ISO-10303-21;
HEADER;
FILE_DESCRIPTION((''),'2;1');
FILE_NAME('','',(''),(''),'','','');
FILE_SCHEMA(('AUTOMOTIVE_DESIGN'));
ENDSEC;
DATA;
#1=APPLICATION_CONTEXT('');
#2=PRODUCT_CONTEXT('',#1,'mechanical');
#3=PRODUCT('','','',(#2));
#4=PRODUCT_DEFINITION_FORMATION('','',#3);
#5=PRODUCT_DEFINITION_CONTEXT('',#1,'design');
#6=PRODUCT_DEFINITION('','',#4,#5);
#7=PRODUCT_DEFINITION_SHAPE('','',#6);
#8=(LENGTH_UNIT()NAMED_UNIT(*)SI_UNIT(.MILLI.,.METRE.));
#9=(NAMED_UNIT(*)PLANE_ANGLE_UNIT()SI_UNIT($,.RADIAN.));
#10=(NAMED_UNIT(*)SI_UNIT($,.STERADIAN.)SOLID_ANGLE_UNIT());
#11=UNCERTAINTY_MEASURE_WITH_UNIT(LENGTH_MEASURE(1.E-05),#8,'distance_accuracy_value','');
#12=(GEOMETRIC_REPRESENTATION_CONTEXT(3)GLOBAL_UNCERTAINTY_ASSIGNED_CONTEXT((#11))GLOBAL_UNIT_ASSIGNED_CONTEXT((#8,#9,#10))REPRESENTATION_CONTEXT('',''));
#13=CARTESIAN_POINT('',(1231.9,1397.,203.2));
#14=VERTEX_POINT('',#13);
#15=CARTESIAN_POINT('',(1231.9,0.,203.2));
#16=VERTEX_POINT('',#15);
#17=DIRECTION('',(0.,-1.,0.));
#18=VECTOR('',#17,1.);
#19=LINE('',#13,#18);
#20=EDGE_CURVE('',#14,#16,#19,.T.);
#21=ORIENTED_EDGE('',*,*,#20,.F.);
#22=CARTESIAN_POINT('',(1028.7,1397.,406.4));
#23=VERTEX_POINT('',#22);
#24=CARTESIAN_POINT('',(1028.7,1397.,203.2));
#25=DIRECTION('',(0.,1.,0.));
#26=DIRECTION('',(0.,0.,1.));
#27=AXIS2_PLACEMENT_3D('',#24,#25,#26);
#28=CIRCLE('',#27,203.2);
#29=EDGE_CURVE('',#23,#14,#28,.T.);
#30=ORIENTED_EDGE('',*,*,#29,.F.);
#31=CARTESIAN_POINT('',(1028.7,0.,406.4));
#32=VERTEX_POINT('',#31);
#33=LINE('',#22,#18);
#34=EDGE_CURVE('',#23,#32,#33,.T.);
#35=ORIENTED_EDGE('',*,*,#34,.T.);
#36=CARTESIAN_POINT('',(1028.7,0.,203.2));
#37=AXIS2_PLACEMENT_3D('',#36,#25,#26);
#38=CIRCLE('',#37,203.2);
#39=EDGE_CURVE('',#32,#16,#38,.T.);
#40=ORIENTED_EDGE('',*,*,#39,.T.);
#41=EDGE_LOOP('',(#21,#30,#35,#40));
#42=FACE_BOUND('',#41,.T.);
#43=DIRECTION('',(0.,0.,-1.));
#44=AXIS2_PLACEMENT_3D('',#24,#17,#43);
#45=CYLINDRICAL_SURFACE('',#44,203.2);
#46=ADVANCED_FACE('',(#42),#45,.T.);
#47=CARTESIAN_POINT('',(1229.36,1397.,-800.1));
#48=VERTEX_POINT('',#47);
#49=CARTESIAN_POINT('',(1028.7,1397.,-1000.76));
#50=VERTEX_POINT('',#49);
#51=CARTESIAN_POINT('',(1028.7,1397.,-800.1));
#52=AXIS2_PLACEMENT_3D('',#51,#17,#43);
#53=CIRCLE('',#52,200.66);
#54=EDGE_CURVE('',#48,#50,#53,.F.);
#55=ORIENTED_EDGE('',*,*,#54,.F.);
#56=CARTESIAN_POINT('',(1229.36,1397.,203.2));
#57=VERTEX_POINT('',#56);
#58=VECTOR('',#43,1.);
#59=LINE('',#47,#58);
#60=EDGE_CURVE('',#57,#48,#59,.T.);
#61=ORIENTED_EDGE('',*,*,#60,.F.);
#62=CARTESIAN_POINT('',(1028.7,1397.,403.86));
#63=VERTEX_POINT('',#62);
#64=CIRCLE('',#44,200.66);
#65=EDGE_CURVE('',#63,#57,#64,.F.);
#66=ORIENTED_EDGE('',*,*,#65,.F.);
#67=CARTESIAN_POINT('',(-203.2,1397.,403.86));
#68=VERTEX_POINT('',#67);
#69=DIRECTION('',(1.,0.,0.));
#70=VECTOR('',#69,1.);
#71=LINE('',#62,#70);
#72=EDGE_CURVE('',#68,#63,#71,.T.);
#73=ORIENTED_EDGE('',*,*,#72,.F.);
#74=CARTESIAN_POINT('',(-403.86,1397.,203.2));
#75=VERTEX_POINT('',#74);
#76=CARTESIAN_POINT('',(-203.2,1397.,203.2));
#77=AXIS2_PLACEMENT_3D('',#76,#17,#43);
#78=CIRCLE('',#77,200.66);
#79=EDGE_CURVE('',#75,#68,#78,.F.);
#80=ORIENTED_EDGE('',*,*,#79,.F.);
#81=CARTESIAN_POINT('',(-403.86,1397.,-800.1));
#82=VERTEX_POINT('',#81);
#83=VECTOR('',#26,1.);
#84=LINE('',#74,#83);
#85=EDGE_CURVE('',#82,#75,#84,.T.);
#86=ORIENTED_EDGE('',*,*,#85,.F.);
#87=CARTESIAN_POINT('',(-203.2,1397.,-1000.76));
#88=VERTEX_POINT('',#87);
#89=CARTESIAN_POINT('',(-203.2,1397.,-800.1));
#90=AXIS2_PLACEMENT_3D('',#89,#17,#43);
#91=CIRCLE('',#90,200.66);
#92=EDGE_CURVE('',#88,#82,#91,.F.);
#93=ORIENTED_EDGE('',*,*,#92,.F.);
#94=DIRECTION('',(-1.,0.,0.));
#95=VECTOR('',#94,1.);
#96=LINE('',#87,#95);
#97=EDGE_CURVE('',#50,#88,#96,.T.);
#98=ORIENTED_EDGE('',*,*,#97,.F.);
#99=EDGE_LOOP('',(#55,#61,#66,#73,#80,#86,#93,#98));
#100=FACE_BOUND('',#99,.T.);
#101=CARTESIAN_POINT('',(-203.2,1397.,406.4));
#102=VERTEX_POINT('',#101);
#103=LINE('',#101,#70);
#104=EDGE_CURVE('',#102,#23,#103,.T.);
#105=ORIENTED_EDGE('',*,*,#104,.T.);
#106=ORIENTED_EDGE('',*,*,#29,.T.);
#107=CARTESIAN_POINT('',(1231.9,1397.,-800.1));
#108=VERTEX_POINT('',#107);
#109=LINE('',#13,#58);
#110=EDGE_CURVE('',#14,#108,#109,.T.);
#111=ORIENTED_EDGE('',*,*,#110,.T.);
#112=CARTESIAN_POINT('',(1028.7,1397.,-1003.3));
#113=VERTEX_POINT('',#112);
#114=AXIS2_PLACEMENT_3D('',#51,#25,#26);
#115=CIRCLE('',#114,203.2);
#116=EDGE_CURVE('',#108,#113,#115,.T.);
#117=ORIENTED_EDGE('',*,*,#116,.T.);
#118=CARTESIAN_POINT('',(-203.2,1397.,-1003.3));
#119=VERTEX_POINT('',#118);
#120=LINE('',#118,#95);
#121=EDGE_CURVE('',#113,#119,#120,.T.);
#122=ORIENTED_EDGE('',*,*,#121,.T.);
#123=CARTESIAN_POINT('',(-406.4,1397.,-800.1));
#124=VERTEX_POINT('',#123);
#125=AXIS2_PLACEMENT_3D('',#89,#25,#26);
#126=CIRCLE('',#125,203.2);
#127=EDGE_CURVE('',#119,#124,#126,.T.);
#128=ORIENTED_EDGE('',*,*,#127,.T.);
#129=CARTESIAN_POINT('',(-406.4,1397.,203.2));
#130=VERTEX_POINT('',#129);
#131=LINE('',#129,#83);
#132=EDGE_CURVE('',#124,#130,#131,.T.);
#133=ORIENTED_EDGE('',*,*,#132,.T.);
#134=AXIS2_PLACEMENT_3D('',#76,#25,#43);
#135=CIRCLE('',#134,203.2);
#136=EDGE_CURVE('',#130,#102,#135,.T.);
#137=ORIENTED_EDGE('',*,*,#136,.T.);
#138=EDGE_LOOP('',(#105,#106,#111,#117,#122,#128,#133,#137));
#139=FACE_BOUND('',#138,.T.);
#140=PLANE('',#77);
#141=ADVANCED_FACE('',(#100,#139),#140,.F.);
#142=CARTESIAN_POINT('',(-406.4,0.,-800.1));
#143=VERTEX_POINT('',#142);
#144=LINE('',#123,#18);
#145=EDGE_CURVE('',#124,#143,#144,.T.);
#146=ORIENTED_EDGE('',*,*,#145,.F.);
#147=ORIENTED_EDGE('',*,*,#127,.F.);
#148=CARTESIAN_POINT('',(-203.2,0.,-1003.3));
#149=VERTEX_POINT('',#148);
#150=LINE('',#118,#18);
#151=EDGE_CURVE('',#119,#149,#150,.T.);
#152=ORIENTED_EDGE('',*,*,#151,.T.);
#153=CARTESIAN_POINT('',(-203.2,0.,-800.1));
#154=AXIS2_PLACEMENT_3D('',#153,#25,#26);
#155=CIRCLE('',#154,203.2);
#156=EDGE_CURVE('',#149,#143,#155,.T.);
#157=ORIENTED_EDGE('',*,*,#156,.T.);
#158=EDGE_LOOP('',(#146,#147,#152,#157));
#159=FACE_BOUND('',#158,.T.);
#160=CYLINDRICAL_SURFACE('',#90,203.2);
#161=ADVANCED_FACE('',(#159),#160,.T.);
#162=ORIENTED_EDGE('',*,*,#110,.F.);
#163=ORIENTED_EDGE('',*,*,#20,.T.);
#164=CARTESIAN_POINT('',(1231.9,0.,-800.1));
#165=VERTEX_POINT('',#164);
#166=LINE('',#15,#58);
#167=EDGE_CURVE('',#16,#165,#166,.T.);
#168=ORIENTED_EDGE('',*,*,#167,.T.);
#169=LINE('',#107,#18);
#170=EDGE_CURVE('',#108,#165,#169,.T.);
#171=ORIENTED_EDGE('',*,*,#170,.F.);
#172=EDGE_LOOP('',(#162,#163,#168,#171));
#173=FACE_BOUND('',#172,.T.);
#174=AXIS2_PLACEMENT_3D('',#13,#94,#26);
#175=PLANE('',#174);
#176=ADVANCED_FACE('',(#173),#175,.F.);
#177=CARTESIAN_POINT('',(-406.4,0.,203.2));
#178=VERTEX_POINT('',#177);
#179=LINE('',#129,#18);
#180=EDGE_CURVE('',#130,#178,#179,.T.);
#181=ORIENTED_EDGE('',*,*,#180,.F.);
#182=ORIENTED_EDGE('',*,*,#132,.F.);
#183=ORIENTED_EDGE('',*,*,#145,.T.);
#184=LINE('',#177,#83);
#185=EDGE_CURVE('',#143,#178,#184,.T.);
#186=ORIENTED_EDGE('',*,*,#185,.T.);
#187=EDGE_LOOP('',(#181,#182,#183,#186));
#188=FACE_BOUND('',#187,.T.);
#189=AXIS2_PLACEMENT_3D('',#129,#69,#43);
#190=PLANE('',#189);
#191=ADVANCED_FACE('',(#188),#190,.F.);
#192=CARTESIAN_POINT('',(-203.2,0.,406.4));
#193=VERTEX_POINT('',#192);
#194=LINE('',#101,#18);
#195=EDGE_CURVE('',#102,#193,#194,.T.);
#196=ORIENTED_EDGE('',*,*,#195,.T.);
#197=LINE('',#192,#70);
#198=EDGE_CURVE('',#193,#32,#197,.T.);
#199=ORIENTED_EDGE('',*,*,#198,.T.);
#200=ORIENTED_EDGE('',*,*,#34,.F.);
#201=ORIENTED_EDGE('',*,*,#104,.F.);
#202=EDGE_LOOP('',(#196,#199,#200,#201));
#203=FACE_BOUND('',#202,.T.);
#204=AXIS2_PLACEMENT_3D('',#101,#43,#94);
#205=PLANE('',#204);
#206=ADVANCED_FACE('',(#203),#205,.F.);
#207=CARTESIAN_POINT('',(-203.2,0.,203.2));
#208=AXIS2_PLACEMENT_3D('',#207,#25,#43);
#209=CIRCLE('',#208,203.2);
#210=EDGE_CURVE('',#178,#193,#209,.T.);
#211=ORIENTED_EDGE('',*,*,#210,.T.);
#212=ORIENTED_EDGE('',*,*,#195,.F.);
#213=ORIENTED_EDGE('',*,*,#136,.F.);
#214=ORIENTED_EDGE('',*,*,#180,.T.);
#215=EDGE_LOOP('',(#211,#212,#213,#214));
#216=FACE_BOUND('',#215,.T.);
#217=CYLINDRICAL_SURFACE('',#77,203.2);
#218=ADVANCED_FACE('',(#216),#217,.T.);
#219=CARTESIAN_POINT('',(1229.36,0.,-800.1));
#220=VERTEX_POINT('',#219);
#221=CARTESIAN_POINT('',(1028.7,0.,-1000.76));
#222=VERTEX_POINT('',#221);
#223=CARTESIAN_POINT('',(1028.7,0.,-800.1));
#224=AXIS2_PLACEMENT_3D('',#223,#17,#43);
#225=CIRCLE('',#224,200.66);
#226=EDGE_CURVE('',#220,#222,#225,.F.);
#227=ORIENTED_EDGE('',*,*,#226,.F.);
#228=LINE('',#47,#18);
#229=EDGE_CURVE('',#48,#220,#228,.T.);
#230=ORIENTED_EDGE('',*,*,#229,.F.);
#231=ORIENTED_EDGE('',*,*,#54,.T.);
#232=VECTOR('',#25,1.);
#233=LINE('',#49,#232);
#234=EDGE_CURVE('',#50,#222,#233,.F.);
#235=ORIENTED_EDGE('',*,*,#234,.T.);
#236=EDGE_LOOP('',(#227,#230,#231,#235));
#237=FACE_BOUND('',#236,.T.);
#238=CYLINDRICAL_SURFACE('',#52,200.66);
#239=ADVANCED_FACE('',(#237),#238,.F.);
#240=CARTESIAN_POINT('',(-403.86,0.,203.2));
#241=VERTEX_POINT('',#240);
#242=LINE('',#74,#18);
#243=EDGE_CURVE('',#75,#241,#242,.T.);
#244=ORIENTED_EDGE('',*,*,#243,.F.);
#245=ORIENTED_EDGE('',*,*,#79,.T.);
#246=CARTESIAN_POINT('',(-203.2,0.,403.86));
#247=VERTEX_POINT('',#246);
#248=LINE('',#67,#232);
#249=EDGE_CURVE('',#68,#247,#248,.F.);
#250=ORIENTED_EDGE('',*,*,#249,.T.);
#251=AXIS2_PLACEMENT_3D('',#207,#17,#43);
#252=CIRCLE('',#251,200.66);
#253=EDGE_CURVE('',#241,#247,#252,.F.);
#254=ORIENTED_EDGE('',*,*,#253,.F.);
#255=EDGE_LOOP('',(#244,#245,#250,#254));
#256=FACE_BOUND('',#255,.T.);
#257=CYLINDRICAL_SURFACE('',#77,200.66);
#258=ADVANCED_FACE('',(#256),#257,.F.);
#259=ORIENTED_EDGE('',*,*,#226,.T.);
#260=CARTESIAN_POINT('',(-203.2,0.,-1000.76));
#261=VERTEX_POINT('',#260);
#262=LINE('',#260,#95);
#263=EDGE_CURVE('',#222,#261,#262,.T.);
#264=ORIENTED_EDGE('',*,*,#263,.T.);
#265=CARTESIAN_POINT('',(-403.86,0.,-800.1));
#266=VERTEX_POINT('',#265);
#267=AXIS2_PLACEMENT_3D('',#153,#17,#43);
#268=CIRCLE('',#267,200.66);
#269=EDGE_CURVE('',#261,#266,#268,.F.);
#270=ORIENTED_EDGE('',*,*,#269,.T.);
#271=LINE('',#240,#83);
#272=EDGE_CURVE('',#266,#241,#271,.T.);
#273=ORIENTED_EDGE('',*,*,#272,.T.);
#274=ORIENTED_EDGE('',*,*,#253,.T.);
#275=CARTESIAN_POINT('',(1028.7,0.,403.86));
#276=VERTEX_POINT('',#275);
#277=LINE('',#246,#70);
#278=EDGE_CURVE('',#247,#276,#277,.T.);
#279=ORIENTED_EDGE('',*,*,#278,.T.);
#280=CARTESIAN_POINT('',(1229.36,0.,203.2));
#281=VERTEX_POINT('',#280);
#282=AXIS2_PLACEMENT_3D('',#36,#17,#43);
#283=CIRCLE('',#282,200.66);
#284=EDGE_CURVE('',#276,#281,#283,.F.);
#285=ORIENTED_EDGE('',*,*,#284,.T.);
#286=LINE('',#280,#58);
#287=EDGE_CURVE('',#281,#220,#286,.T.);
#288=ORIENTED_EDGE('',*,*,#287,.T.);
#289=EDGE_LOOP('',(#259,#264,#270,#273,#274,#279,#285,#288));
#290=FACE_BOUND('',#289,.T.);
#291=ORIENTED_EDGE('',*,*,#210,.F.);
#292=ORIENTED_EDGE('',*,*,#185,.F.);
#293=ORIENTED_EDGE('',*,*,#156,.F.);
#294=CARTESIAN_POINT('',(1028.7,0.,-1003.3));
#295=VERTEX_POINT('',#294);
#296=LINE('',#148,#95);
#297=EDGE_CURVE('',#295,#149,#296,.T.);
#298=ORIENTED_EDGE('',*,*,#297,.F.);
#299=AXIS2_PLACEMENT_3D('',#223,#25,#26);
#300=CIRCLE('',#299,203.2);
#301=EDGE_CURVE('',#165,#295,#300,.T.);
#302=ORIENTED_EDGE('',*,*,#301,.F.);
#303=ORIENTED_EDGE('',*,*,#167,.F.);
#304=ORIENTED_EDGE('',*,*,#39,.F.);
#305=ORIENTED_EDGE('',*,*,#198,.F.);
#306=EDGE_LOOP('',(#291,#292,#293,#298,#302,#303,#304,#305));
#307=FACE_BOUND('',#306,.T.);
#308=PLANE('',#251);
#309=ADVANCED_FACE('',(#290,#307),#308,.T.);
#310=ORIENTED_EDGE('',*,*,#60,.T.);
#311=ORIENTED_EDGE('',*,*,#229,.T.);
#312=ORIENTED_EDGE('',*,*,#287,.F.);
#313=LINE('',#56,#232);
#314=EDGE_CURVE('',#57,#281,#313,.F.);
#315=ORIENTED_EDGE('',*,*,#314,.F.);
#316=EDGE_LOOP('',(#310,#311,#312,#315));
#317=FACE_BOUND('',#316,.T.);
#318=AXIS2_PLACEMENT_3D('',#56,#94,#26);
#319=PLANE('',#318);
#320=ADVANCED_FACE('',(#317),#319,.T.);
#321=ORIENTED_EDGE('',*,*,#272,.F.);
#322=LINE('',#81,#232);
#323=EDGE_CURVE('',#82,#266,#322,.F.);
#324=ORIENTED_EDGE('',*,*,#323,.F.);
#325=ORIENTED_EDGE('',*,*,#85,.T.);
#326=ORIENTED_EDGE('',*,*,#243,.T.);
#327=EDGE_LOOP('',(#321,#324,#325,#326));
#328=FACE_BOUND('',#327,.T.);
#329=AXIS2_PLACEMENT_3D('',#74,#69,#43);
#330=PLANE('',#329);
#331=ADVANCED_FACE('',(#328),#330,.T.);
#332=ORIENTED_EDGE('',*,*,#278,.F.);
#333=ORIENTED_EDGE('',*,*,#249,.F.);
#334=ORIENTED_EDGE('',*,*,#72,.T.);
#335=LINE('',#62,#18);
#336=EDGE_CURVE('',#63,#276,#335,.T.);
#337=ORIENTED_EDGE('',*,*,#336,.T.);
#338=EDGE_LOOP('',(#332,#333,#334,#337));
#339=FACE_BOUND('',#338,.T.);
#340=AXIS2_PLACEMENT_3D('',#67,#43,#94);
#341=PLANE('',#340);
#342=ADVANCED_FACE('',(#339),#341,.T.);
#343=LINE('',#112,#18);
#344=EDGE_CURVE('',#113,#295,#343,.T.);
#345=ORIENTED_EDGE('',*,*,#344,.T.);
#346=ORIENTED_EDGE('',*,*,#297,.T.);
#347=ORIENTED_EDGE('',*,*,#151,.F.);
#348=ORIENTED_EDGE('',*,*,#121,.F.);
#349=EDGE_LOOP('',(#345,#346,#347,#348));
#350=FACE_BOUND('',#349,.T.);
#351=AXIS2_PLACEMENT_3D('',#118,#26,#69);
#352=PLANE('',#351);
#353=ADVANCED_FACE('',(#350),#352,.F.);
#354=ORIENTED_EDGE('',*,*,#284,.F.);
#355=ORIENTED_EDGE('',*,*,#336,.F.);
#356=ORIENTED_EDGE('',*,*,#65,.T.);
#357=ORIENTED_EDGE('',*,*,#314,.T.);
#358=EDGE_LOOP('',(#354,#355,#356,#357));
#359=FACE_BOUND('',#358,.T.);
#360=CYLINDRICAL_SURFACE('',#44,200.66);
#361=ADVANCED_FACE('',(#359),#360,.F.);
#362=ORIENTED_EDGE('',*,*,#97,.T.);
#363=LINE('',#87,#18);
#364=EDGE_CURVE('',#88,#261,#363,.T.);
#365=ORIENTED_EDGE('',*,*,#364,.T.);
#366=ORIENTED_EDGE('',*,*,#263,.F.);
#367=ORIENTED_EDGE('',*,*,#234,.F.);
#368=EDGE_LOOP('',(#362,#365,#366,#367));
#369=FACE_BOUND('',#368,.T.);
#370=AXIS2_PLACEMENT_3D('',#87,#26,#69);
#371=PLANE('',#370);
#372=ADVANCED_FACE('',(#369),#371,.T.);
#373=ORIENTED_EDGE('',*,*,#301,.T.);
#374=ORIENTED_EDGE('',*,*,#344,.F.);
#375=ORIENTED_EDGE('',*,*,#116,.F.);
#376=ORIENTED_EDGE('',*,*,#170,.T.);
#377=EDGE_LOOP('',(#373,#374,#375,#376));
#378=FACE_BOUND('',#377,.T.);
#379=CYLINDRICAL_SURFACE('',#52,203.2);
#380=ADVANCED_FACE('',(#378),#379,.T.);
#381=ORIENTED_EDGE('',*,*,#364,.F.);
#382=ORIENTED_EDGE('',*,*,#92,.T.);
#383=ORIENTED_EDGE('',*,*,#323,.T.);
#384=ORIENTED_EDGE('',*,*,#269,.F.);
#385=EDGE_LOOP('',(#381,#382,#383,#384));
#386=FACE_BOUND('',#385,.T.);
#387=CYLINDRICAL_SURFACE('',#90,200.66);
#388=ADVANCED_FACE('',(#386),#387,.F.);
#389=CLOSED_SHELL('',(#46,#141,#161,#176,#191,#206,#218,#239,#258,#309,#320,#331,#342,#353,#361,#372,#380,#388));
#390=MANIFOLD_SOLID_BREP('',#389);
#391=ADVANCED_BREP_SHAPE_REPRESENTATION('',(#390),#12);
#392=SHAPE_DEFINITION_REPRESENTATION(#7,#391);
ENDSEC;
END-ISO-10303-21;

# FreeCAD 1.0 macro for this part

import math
import FreeCAD as App
import Part
import Sketcher

V = App.Vector
Q = App.Units.Quantity


def faces_at(feature, points):
    """Names of the faces that lie closest to the given points."""
    faces = feature.Shape.Faces
    near = lambda p: min(range(len(faces)), key=lambda i: faces[i].distToShape(Part.Vertex(*p))[0])
    return sorted({f"Face{near(p) + 1}" for p in points})

doc = App.newDocument("Part")
body = doc.addObject("PartDesign::Body", "Body")

# Sketch on XZ plane
sketch1 = body.newObject("Sketcher::SketchObject", "Sketch")
sketch1.AttachmentSupport = (doc.getObject("XZ_Plane"), [""])
sketch1.MapMode = "FlatFace"
sketch1.addGeometry([
    Part.LineSegment(V(-203, 406, 0), V(1029, 406, 0)),  # 0
    Part.ArcOfCircle(Part.Circle(V(1029, 203, 0), V(0, 0, 1), 203), math.radians(0), math.radians(90)),  # 1
    Part.LineSegment(V(1232, 203, 0), V(1232, -800, 0)),  # 2
    Part.ArcOfCircle(Part.Circle(V(1029, -800, 0), V(0, 0, 1), 203), math.radians(-90), math.radians(0)),  # 3
    Part.LineSegment(V(1029, -1003, 0), V(-203, -1003, 0)),  # 4
    Part.ArcOfCircle(Part.Circle(V(-203, -800, 0), V(0, 0, 1), 203), math.radians(180), math.radians(270)),  # 5
    Part.LineSegment(V(-406, -800, 0), V(-406, 203, 0)),  # 6
    Part.ArcOfCircle(Part.Circle(V(-203, 203, 0), V(0, 0, 1), 203), math.radians(90), math.radians(180)),  # 7
], False)
sketch1.addConstraint([
    Sketcher.Constraint("Tangent", 0, 2, 1, 2),
    Sketcher.Constraint("Tangent", 1, 1, 2, 1),
    Sketcher.Constraint("Tangent", 2, 2, 3, 2),
    Sketcher.Constraint("Tangent", 3, 1, 4, 1),
    Sketcher.Constraint("Tangent", 4, 2, 5, 2),
    Sketcher.Constraint("Tangent", 5, 1, 6, 1),
    Sketcher.Constraint("Tangent", 6, 2, 7, 2),
    Sketcher.Constraint("Tangent", 7, 1, 0, 1),
    Sketcher.Constraint("Horizontal", 0),
    Sketcher.Constraint("Vertical", 2),
    Sketcher.Constraint("Horizontal", 4),
    Sketcher.Constraint("Vertical", 6),
    Sketcher.Constraint("Equal", 1, 3),
    Sketcher.Constraint("Equal", 3, 5),
    Sketcher.Constraint("Equal", 5, 7),
    Sketcher.Constraint("Radius", 1, Q("8 in")),
    Sketcher.Constraint("DistanceX", 0, 1, 0, 2, Q("48.5 in")),
    Sketcher.Constraint("DistanceY", 2, 2, 2, 1, Q("39.5 in")),
    Sketcher.Constraint("DistanceY", -1, 1, 1, 3, Q("8 in")),
    Sketcher.Constraint("DistanceX", 5, 3, -1, 1, Q("8 in")),
])
pad1 = body.newObject("PartDesign::Pad", "Pad")
pad1.Profile = sketch1
pad1.Length = Q("55 in")
pad1.Reversed = True
doc.recompute()

thickness = body.newObject("PartDesign::Thickness", "Thickness")
thickness.Base = (pad1, faces_at(pad1, [(412.75, 0, -298.45)]))
thickness.Value = Q("0.1 in")
thickness.Reversed = True
thickness.Join = "Intersection"

# Sketch on XZ plane
sketch2 = body.newObject("Sketcher::SketchObject", "Sketch001")
sketch2.AttachmentSupport = (doc.getObject("XZ_Plane"), [""])
sketch2.MapMode = "FlatFace"
sketch2.AttachmentOffset = App.Placement(V(0, 0, -54.9 * 25.4), App.Rotation())
sketch2.addGeometry([
    Part.LineSegment(V(-404, 203, 0), V(-404, -800, 0)),  # 0
    Part.ArcOfCircle(Part.Circle(V(-203, -800, 0), V(0, 0, 1), 201), math.radians(180), math.radians(270)),  # 1
    Part.LineSegment(V(-203, -1001, 0), V(1029, -1001, 0)),  # 2
    Part.ArcOfCircle(Part.Circle(V(1029, -800, 0), V(0, 0, 1), 201), math.radians(-90), math.radians(0)),  # 3
    Part.LineSegment(V(1229, -800, 0), V(1229, 203, 0)),  # 4
    Part.ArcOfCircle(Part.Circle(V(1029, 203, 0), V(0, 0, 1), 201), math.radians(0), math.radians(90)),  # 5
    Part.LineSegment(V(1029, 404, 0), V(-203, 404, 0)),  # 6
    Part.ArcOfCircle(Part.Circle(V(-203, 203, 0), V(0, 0, 1), 201), math.radians(90), math.radians(180)),  # 7
], False)
sketch2.addConstraint([
    Sketcher.Constraint("Tangent", 0, 2, 1, 1),
    Sketcher.Constraint("Tangent", 1, 2, 2, 1),
    Sketcher.Constraint("Tangent", 2, 2, 3, 1),
    Sketcher.Constraint("Tangent", 3, 2, 4, 1),
    Sketcher.Constraint("Tangent", 4, 2, 5, 1),
    Sketcher.Constraint("Tangent", 5, 2, 6, 1),
    Sketcher.Constraint("Tangent", 6, 2, 7, 1),
    Sketcher.Constraint("Tangent", 7, 2, 0, 1),
    Sketcher.Constraint("Vertical", 0),
    Sketcher.Constraint("Horizontal", 2),
    Sketcher.Constraint("Vertical", 4),
    Sketcher.Constraint("Horizontal", 6),
    Sketcher.Constraint("Equal", 1, 3),
    Sketcher.Constraint("Equal", 3, 5),
    Sketcher.Constraint("Equal", 5, 7),
    Sketcher.Constraint("Radius", 1, Q("7.9 in")),
    Sketcher.Constraint("DistanceX", 2, 1, 2, 2, Q("48.5 in")),
    Sketcher.Constraint("DistanceY", 0, 2, 0, 1, Q("39.5 in")),
    Sketcher.Constraint("DistanceX", 1, 3, -1, 1, Q("8 in")),
    Sketcher.Constraint("DistanceY", -1, 1, 5, 3, Q("8 in")),
])
pocket1 = body.newObject("PartDesign::Pocket", "Pocket")
pocket1.Profile = sketch2
pocket1.Type = "UpToFirst"

doc.recompute()
